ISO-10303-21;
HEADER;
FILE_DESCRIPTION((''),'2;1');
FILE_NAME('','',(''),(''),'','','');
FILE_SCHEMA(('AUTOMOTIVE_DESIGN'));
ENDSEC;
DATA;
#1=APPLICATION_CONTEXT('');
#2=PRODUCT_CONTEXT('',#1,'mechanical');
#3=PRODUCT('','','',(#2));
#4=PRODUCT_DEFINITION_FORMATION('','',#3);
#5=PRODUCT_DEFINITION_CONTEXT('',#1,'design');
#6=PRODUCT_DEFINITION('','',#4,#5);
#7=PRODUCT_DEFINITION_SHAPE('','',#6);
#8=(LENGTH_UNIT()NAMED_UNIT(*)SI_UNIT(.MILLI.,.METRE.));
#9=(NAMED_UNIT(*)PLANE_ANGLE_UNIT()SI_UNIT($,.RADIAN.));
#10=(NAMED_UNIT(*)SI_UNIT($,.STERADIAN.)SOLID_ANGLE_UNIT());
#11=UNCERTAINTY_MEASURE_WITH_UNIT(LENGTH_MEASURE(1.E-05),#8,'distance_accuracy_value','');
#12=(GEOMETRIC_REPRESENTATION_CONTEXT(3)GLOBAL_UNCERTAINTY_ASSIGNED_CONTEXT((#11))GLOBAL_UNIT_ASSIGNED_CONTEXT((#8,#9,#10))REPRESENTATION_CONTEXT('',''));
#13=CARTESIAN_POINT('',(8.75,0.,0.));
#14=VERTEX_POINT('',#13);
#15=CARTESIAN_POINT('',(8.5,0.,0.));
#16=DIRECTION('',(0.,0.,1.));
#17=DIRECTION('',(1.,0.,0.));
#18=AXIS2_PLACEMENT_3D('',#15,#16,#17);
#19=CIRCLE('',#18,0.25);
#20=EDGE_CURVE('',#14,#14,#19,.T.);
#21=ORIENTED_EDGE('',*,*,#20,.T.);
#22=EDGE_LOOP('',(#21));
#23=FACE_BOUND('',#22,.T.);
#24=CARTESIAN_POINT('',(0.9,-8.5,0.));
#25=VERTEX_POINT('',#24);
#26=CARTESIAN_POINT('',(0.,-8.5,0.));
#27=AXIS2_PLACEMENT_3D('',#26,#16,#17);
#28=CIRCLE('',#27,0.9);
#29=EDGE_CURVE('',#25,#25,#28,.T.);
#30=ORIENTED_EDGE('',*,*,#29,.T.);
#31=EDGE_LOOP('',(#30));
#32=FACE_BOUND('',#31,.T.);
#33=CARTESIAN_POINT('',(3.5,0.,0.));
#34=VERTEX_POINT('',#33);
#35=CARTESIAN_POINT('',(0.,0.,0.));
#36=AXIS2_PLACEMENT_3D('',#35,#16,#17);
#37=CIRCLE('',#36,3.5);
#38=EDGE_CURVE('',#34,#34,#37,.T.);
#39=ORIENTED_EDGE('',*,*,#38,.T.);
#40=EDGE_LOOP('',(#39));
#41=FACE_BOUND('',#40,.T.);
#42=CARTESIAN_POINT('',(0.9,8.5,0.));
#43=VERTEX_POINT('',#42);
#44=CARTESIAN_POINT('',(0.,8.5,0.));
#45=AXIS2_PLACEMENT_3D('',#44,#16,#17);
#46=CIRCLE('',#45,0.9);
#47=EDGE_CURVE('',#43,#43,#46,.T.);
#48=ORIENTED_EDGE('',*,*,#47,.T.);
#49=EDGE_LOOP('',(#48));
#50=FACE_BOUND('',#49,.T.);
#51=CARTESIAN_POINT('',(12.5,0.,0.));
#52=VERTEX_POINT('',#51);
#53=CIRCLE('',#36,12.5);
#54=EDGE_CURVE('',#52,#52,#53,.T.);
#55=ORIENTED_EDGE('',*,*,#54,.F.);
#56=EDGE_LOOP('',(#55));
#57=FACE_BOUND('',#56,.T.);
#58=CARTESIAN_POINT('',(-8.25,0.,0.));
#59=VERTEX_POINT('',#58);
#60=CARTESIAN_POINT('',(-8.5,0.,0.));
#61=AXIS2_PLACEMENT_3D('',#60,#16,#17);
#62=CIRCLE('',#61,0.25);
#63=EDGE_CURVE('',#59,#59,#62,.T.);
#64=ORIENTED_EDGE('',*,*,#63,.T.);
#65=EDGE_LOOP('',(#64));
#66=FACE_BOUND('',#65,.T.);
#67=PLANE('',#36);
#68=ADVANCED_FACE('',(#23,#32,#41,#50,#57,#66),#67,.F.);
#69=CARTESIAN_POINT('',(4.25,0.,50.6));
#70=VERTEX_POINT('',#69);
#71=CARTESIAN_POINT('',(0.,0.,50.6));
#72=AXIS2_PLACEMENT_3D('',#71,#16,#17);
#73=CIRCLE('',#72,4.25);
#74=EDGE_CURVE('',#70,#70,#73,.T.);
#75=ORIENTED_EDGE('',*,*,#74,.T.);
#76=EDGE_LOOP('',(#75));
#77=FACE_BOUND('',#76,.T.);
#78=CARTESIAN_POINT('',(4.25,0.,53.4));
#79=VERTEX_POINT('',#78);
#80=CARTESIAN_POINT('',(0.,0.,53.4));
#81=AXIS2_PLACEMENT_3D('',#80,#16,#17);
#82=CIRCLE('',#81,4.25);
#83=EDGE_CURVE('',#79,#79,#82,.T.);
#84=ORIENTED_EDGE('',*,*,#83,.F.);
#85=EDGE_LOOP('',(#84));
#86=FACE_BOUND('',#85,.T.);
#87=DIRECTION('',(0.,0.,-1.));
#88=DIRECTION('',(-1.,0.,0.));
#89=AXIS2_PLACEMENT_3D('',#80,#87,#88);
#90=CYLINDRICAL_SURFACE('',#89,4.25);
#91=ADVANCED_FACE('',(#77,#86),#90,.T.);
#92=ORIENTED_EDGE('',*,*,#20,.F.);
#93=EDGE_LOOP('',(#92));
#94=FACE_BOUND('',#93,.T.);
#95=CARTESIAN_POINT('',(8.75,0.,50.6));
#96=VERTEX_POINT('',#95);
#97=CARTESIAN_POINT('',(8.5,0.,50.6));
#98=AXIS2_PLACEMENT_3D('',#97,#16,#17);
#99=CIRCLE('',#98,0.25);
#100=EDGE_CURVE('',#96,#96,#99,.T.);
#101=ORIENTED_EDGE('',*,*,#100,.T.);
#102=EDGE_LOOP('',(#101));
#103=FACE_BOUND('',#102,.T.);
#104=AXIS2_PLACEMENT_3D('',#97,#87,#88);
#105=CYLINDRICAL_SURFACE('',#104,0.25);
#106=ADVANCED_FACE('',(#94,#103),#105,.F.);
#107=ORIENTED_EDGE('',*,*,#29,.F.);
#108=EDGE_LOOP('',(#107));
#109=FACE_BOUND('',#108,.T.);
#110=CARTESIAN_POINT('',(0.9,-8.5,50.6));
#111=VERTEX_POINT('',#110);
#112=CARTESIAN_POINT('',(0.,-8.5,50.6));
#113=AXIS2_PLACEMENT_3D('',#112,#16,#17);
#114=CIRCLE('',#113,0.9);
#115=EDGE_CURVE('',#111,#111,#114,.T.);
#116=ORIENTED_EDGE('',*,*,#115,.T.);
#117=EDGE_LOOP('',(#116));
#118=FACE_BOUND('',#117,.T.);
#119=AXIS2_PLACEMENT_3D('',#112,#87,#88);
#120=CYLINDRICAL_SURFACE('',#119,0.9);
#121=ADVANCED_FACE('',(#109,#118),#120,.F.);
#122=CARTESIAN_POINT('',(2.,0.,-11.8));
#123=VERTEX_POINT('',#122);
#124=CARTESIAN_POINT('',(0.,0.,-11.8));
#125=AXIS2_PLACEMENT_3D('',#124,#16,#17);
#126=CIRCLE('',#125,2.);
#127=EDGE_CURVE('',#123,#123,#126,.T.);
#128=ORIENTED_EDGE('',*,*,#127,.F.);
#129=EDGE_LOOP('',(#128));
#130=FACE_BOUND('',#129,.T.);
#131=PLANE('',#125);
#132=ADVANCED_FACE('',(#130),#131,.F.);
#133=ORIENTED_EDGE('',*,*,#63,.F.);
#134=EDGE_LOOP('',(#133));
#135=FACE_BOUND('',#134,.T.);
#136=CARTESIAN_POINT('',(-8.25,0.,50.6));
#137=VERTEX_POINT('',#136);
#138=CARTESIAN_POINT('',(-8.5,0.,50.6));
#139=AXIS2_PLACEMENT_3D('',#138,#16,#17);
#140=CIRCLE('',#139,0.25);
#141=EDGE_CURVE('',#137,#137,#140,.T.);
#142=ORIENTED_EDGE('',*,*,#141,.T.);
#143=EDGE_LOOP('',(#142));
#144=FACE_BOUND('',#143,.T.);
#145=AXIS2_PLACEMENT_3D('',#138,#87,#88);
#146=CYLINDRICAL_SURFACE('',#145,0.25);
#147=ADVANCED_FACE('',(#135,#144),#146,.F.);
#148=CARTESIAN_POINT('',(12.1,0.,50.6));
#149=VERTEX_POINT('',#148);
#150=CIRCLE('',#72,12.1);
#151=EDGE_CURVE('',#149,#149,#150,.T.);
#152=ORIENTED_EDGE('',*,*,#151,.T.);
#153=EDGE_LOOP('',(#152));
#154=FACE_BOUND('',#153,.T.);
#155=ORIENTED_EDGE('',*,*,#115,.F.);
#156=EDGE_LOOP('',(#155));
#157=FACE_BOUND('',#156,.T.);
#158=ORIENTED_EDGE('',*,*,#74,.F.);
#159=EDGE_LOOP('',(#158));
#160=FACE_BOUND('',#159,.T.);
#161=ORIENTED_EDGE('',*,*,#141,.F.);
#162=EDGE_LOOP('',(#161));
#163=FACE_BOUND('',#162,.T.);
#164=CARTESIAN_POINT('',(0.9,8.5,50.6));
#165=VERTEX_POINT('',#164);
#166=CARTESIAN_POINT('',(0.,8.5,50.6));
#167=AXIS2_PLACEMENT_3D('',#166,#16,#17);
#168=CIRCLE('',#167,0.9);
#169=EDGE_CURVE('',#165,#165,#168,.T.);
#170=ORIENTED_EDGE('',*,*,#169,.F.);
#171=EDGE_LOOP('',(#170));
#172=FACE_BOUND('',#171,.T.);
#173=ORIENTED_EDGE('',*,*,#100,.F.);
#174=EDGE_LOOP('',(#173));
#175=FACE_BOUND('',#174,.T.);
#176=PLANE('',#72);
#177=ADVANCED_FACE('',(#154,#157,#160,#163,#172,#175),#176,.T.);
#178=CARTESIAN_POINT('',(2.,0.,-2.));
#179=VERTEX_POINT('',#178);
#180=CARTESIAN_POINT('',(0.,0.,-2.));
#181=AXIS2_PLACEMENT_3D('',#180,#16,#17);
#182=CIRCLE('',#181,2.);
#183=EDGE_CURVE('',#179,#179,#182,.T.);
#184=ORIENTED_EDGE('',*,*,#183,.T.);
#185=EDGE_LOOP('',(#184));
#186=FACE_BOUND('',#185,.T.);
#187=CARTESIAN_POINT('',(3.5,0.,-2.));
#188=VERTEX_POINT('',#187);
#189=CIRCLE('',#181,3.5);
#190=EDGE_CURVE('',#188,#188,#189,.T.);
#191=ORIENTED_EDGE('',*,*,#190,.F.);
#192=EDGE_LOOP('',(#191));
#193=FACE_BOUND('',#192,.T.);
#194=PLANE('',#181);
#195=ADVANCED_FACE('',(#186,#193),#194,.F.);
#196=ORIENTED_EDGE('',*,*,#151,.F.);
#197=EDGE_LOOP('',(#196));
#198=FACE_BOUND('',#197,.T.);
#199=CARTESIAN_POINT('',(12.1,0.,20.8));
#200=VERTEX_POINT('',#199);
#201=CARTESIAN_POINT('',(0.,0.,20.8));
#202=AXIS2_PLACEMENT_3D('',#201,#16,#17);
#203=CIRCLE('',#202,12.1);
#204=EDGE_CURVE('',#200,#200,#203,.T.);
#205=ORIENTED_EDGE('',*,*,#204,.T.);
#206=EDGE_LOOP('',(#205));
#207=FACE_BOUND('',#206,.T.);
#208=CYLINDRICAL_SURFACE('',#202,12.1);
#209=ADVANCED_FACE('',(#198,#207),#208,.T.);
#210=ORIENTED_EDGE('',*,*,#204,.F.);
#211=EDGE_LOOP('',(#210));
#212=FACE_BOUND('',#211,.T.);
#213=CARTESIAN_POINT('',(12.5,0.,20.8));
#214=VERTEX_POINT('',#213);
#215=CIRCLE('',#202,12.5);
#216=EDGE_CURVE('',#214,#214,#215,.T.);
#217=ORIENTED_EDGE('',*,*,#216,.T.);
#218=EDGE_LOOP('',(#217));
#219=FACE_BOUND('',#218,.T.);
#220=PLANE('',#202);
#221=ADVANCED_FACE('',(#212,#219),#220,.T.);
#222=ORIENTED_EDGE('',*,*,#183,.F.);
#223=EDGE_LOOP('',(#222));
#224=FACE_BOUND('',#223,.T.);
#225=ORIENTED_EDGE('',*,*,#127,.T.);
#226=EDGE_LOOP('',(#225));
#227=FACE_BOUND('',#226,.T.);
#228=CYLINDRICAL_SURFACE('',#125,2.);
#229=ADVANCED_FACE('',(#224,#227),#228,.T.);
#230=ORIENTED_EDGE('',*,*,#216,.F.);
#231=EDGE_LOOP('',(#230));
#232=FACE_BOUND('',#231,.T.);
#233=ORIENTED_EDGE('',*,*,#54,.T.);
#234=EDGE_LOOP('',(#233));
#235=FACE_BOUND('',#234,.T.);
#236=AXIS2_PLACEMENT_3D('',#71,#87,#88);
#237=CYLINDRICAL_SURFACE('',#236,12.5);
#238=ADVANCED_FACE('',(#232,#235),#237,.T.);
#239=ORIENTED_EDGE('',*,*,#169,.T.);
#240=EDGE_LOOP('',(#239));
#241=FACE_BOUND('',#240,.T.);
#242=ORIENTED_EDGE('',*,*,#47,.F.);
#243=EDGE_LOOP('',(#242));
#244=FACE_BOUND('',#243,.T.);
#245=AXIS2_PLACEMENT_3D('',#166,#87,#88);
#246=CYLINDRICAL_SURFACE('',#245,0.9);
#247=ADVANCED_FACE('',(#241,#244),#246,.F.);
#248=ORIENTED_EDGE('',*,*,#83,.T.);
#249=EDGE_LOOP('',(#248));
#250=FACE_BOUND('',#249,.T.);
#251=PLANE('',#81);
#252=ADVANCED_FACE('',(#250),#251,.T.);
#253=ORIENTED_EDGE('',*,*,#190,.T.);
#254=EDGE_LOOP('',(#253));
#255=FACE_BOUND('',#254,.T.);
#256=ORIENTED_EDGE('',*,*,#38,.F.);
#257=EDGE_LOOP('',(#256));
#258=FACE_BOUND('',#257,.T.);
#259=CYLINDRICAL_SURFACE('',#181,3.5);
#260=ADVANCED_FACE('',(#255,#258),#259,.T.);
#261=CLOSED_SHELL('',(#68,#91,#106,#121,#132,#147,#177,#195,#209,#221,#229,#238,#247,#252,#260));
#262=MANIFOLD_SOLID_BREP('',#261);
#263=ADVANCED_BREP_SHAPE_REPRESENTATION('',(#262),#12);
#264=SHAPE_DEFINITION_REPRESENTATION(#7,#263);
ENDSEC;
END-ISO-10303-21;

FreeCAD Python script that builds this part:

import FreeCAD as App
import Part
import Sketcher
from FreeCAD import Vector
Q = App.Units.Quantity

doc = App.newDocument("Part")
body = doc.addObject("PartDesign::Body", "Body")

sketch1 = body.newObject("Sketcher::SketchObject", "Sketch")
sketch1.AttachmentSupport = (doc.getObject("XY_Plane"), [""])
sketch1.MapMode = "FlatFace"
sketch1.addGeometry([
    Part.Circle(Vector(0, 0, 0), Vector(0, 0, 1), 12.5),
    Part.Circle(Vector(0, -8.5, 0), Vector(0, 0, 1), 0.9),
    Part.Circle(Vector(-8.5, 0, 0), Vector(0, 0, 1), 0.25),
    Part.Circle(Vector(8.5, 0, 0), Vector(0, 0, 1), 0.25),
    Part.Circle(Vector(0, 8.5, 0), Vector(0, 0, 1), 0.9),
], False)
sketch1.addConstraint([
    Sketcher.Constraint("Coincident", 0, 3, -1, 1),
    Sketcher.Constraint("Equal", 2, 3),
    Sketcher.Constraint("Equal", 1, 4),
    Sketcher.Constraint("Symmetric", 2, 3, 3, 3, -1, 1),
    Sketcher.Constraint("Symmetric", 1, 3, 4, 3, -1, 1),
    Sketcher.Constraint("PointOnObject", 1, 3, -2),
    Sketcher.Constraint("PointOnObject", 2, 3, -1),
    Sketcher.Constraint("Diameter", 0, Q("25 mm")),
    Sketcher.Constraint("Diameter", 1, Q("1.8 mm")),
    Sketcher.Constraint("Diameter", 2, Q("0.5 mm")),
    Sketcher.Constraint("DistanceX", 2, 3, 3, 3, Q("17 mm")),
    Sketcher.Constraint("DistanceY", 1, 3, 4, 3, Q("17 mm")),
])
pad1 = body.newObject("PartDesign::Pad", "Pad")
pad1.Profile = sketch1
pad1.Length = 50.6

sketch2 = body.newObject("Sketcher::SketchObject", "Sketch001")
sketch2.AttachmentSupport = (doc.getObject("XY_Plane"), [""])
sketch2.MapMode = "FlatFace"
sketch2.addGeometry(Part.Circle(Vector(0, 0, 0), Vector(0, 0, 1), 3.5), False)
sketch2.addConstraint([
    Sketcher.Constraint("Coincident", 0, 3, -1, 1),
    Sketcher.Constraint("Diameter", 0, Q("7 mm")),
])
pad2 = body.newObject("PartDesign::Pad", "Pad001")
pad2.Profile = sketch2
pad2.Length = 2
pad2.Reversed = True

sketch3 = body.newObject("Sketcher::SketchObject", "Sketch002")
sketch3.AttachmentSupport = (doc.getObject("XY_Plane"), [""])
sketch3.MapMode = "FlatFace"
sketch3.addGeometry(Part.Circle(Vector(0, 0, 0), Vector(0, 0, 1), 2), False)
sketch3.addConstraint([
    Sketcher.Constraint("Coincident", 0, 3, -1, 1),
    Sketcher.Constraint("Diameter", 0, Q("4 mm")),
])
pad3 = body.newObject("PartDesign::Pad", "Pad002")
pad3.Profile = sketch3
pad3.Length = 11.8
pad3.Reversed = True

sketch4 = body.newObject("Sketcher::SketchObject", "Sketch003")
sketch4.AttachmentSupport = (doc.getObject("XY_Plane"), [""])
sketch4.MapMode = "FlatFace"
sketch4.AttachmentOffset = App.Placement(Vector(0, 0, 50.6), App.Rotation())
sketch4.addGeometry(Part.Circle(Vector(0, 0, 0), Vector(0, 0, 1), 4.25), False)
sketch4.addConstraint([
    Sketcher.Constraint("Coincident", 0, 3, -1, 1),
    Sketcher.Constraint("Diameter", 0, Q("8.5 mm")),
])
pad4 = body.newObject("PartDesign::Pad", "Pad003")
pad4.Profile = sketch4
pad4.Length = 2.8

sketch5 = body.newObject("Sketcher::SketchObject", "Sketch004")
sketch5.AttachmentSupport = (doc.getObject("XY_Plane"), [""])
sketch5.MapMode = "FlatFace"
sketch5.AttachmentOffset = App.Placement(Vector(0, 0, 20.8), App.Rotation())
sketch5.addGeometry([
    Part.Circle(Vector(0, 0, 0), Vector(0, 0, 1), 12.5),
    Part.Circle(Vector(0, 0, 0), Vector(0, 0, 1), 12.1),
], False)
sketch5.addConstraint([
    Sketcher.Constraint("Coincident", 0, 3, -1, 1),
    Sketcher.Constraint("Coincident", 1, 3, -1, 1),
    Sketcher.Constraint("Diameter", 0, Q("25 mm")),
    Sketcher.Constraint("Diameter", 1, Q("24.2 mm")),
])
pocket1 = body.newObject("PartDesign::Pocket", "Pocket")
pocket1.Profile = sketch5
pocket1.Length = 29.8
pocket1.Reversed = True

doc.recompute()
